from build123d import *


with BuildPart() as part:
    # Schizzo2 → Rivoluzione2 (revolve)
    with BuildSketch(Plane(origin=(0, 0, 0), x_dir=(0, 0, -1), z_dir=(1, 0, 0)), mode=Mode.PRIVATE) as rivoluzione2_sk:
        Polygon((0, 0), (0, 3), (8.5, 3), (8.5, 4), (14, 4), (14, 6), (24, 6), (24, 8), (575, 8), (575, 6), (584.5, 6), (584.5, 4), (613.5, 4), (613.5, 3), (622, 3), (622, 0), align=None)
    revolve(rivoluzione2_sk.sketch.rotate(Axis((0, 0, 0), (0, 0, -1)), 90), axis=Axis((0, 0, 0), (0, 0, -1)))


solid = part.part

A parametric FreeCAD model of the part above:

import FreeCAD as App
import Part
import Sketcher

V = App.Vector
Q = App.Units.Quantity


def add_polygon(sketch, points):
    """Adds a closed chain of lines whose ends are joined by coincident constraints."""
    first, n = sketch.GeometryCount, len(points)
    for a, b in zip(points, points[1:] + points[:1]):
        sketch.addGeometry(Part.LineSegment(App.Vector(*a, 0), App.Vector(*b, 0)), False)
    for i in range(n):
        sketch.addConstraint(Sketcher.Constraint("Coincident", first + i, 2, first + (i + 1) % n, 1))

doc = App.newDocument("Part")
body = doc.addObject("PartDesign::Body", "Body")

sketch1 = doc.addObject("Sketcher::SketchObject", "Sketch")
body.addObject(sketch1)
sketch1.AttachmentSupport = (doc.YZ_Plane, [""])
sketch1.MapMode = "FlatFace"
add_polygon(sketch1, [(3, 0), (0, 0), (0, -622), (3, -622), (3, -613.5), (4, -613.5), (4, -584.5), (6, -584.5), (6, -575), (8, -575), (8, -24), (6, -24), (6, -14), (4, -14), (4, -8.5), (3, -8.5)])
sketch1.addConstraint(Sketcher.Constraint("Horizontal", 0))
sketch1.addConstraint(Sketcher.Constraint("Vertical", 1))
sketch1.addConstraint(Sketcher.Constraint("Horizontal", 2))
sketch1.addConstraint(Sketcher.Constraint("Vertical", 3))
sketch1.addConstraint(Sketcher.Constraint("Horizontal", 4))
sketch1.addConstraint(Sketcher.Constraint("Vertical", 5))
sketch1.addConstraint(Sketcher.Constraint("Horizontal", 6))
sketch1.addConstraint(Sketcher.Constraint("Vertical", 7))
sketch1.addConstraint(Sketcher.Constraint("Horizontal", 8))
sketch1.addConstraint(Sketcher.Constraint("Vertical", 9))
sketch1.addConstraint(Sketcher.Constraint("Horizontal", 10))
sketch1.addConstraint(Sketcher.Constraint("Vertical", 11))
sketch1.addConstraint(Sketcher.Constraint("Horizontal", 12))
sketch1.addConstraint(Sketcher.Constraint("Vertical", 13))
sketch1.addConstraint(Sketcher.Constraint("Horizontal", 14))
sketch1.addConstraint(Sketcher.Constraint("Vertical", 15))
sketch1.addConstraint(Sketcher.Constraint("Coincident", 0, 2, -1, 1))
sketch1.addConstraint(Sketcher.Constraint("Vertical", 7, 2, 10, 2))
sketch1.addConstraint(Sketcher.Constraint("Vertical", 5, 2, 12, 2))
sketch1.addConstraint(Sketcher.Constraint("Vertical", 3, 2, 14, 2))
sketch1.addConstraint(Sketcher.Constraint("Equal", 6, 8))
sketch1.addConstraint(Sketcher.Constraint("Equal", 3, 15))
sketch1.addConstraint(Sketcher.Constraint("DistanceX", 0, 2, 0, 1, Q("3 mm")))
sketch1.addConstraint(Sketcher.Constraint("DistanceX", 4, 1, 4, 2, Q("1 mm")))
sketch1.addConstraint(Sketcher.Constraint("DistanceX", 6, 1, 6, 2, Q("2 mm")))
sketch1.addConstraint(Sketcher.Constraint("DistanceY", 1, 2, 1, 1, Q("622 mm")))
sketch1.addConstraint(Sketcher.Constraint("DistanceY", 5, 1, 5, 2, Q("29 mm")))
sketch1.addConstraint(Sketcher.Constraint("DistanceY", 9, 1, 9, 2, Q("551 mm")))
sketch1.addConstraint(Sketcher.Constraint("DistanceY", 11, 1, 11, 2, Q("10 mm")))
sketch1.addConstraint(Sketcher.Constraint("DistanceY", 3, 1, 3, 2, Q("8.5 mm")))
sketch1.addConstraint(Sketcher.Constraint("DistanceY", 7, 1, 7, 2, Q("9.5 mm")))
revolution = doc.addObject("PartDesign::Revolution", "Revolution")
body.addObject(revolution)
revolution.Profile = sketch1
revolution.ReferenceAxis = (sketch1, ["V_Axis"])
revolution.Angle = 360

doc.recompute()
